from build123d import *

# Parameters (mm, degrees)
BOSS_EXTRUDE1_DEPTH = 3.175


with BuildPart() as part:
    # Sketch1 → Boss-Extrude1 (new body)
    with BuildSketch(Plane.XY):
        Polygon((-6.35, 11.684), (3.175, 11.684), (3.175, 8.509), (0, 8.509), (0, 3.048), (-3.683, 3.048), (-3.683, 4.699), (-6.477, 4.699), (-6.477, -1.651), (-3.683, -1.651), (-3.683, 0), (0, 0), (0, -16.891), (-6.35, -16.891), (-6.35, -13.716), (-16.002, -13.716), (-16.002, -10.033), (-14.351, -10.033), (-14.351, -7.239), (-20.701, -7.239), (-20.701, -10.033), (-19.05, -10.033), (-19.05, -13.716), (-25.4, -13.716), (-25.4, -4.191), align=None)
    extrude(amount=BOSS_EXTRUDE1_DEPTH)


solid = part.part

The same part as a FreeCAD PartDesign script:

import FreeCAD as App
import Part
import Sketcher
Q = App.Units.Quantity

doc = App.newDocument("Part")
body = doc.addObject("PartDesign::Body", "Body")

sketch1 = doc.addObject("Sketcher::SketchObject", "Sketch")
body.addObject(sketch1)
sketch1.AttachmentSupport = (doc.XY_Plane, [""])
sketch1.MapMode = "FlatFace"
sketch1.addGeometry([
    Part.LineSegment(App.Vector(3.2, 11.7, 0), App.Vector(-6.3, 11.7, 0)),
    Part.LineSegment(App.Vector(-6.3, 11.7, 0), App.Vector(-25.4, -4.2, 0)),
    Part.LineSegment(App.Vector(-25.4, -4.2, 0), App.Vector(-25.4, -13.7, 0)),
    Part.LineSegment(App.Vector(-25.4, -13.7, 0), App.Vector(-19.1, -13.7, 0)),
    Part.LineSegment(App.Vector(-19.1, -13.7, 0), App.Vector(-19.1, -10, 0)),
    Part.LineSegment(App.Vector(-19.1, -10, 0), App.Vector(-20.7, -10, 0)),
    Part.LineSegment(App.Vector(-20.7, -10, 0), App.Vector(-20.7, -7.2, 0)),
    Part.LineSegment(App.Vector(-20.7, -7.2, 0), App.Vector(-14.4, -7.2, 0)),
    Part.LineSegment(App.Vector(-14.4, -7.2, 0), App.Vector(-14.4, -10, 0)),
    Part.LineSegment(App.Vector(-14.4, -10, 0), App.Vector(-16, -10, 0)),
    Part.LineSegment(App.Vector(-16, -10, 0), App.Vector(-16, -13.7, 0)),
    Part.LineSegment(App.Vector(-16, -13.7, 0), App.Vector(-6.3, -13.7, 0)),
    Part.LineSegment(App.Vector(-6.3, -13.7, 0), App.Vector(-6.3, -16.9, 0)),
    Part.LineSegment(App.Vector(-6.3, -16.9, 0), App.Vector(0, -16.9, 0)),
    Part.LineSegment(App.Vector(0, -16.9, 0), App.Vector(0, 0, 0)),
    Part.LineSegment(App.Vector(0, 0, 0), App.Vector(-3.7, 0, 0)),
    Part.LineSegment(App.Vector(-3.7, 0, 0), App.Vector(-3.7, -1.7, 0)),
    Part.LineSegment(App.Vector(-3.7, -1.7, 0), App.Vector(-6.5, -1.7, 0)),
    Part.LineSegment(App.Vector(-6.5, -1.7, 0), App.Vector(-6.5, 4.7, 0)),
    Part.LineSegment(App.Vector(-6.5, 4.7, 0), App.Vector(-3.7, 4.7, 0)),
    Part.LineSegment(App.Vector(-3.7, 4.7, 0), App.Vector(-3.7, 3, 0)),
    Part.LineSegment(App.Vector(-3.7, 3, 0), App.Vector(0, 3, 0)),
    Part.LineSegment(App.Vector(0, 3, 0), App.Vector(0, 8.5, 0)),
    Part.LineSegment(App.Vector(0, 8.5, 0), App.Vector(3.2, 8.5, 0)),
    Part.LineSegment(App.Vector(3.2, 8.5, 0), App.Vector(3.2, 11.7, 0)),
], False)
sketch1.addConstraint([
    Sketcher.Constraint("Coincident", 0, 2, 1, 1),
    Sketcher.Constraint("Coincident", 1, 2, 2, 1),
    Sketcher.Constraint("Coincident", 2, 2, 3, 1),
    Sketcher.Constraint("Coincident", 3, 2, 4, 1),
    Sketcher.Constraint("Coincident", 4, 2, 5, 1),
    Sketcher.Constraint("Coincident", 5, 2, 6, 1),
    Sketcher.Constraint("Coincident", 6, 2, 7, 1),
    Sketcher.Constraint("Coincident", 7, 2, 8, 1),
    Sketcher.Constraint("Coincident", 8, 2, 9, 1),
    Sketcher.Constraint("Coincident", 9, 2, 10, 1),
    Sketcher.Constraint("Coincident", 10, 2, 11, 1),
    Sketcher.Constraint("Coincident", 11, 2, 12, 1),
    Sketcher.Constraint("Coincident", 12, 2, 13, 1),
    Sketcher.Constraint("Coincident", 13, 2, 14, 1),
    Sketcher.Constraint("Coincident", 14, 2, 15, 1),
    Sketcher.Constraint("Coincident", 15, 2, 16, 1),
    Sketcher.Constraint("Coincident", 16, 2, 17, 1),
    Sketcher.Constraint("Coincident", 17, 2, 18, 1),
    Sketcher.Constraint("Coincident", 18, 2, 19, 1),
    Sketcher.Constraint("Coincident", 19, 2, 20, 1),
    Sketcher.Constraint("Coincident", 20, 2, 21, 1),
    Sketcher.Constraint("Coincident", 21, 2, 22, 1),
    Sketcher.Constraint("Coincident", 22, 2, 23, 1),
    Sketcher.Constraint("Coincident", 23, 2, 24, 1),
    Sketcher.Constraint("Coincident", 24, 2, 0, 1),
    Sketcher.Constraint("Horizontal", 0),
    Sketcher.Constraint("Vertical", 2),
    Sketcher.Constraint("Horizontal", 3),
    Sketcher.Constraint("Vertical", 4),
    Sketcher.Constraint("Horizontal", 5),
    Sketcher.Constraint("Vertical", 6),
    Sketcher.Constraint("Horizontal", 7),
    Sketcher.Constraint("Vertical", 8),
    Sketcher.Constraint("Horizontal", 9),
    Sketcher.Constraint("Vertical", 10),
    Sketcher.Constraint("Horizontal", 11),
    Sketcher.Constraint("Vertical", 12),
    Sketcher.Constraint("Horizontal", 13),
    Sketcher.Constraint("Vertical", 14),
    Sketcher.Constraint("Horizontal", 15),
    Sketcher.Constraint("Vertical", 16),
    Sketcher.Constraint("Horizontal", 17),
    Sketcher.Constraint("Vertical", 18),
    Sketcher.Constraint("Horizontal", 19),
    Sketcher.Constraint("Vertical", 20),
    Sketcher.Constraint("Horizontal", 21),
    Sketcher.Constraint("Vertical", 22),
    Sketcher.Constraint("Horizontal", 23),
    Sketcher.Constraint("Vertical", 24),
    Sketcher.Constraint("Coincident", 14, 2, -1, 1),
    Sketcher.Constraint("PointOnObject", 21, 2, -2),
    Sketcher.Constraint("Horizontal", 5, 2, 8, 2),
    Sketcher.Constraint("Horizontal", 3, 2, 10, 2),
    Sketcher.Constraint("Vertical", 0, 2, 11, 2),
    Sketcher.Constraint("Vertical", 16, 2, 19, 2),
    Sketcher.Constraint("Equal", 3, 7),
    Sketcher.Constraint("Equal", 5, 9),
    Sketcher.Constraint("Equal", 7, 13),
    Sketcher.Constraint("Equal", 0, 2),
    Sketcher.Constraint("Equal", 21, 4),
    Sketcher.Constraint("Equal", 19, 6),
    Sketcher.Constraint("Equal", 23, 12),
    Sketcher.Constraint("Equal", 9, 16),
    Sketcher.Constraint("Equal", 13, 18),
    Sketcher.Constraint("Equal", 16, 20),
    Sketcher.Constraint("Equal", 12, 24),
    Sketcher.Constraint("DistanceX", 1, 2, -1, 1, Q("1 in")),
    Sketcher.Constraint("DistanceY", 2, 2, 0, 2, Q("1 in")),
    Sketcher.Constraint("DistanceX", 3, 1, 3, 2, Q("0.25 in")),
    Sketcher.Constraint("DistanceX", 11, 1, 11, 2, Q("0.38 in")),
    Sketcher.Constraint("DistanceX", 17, 2, 17, 1, Q("0.11 in")),
    Sketcher.Constraint("DistanceX", 0, 2, 0, 1, Q("0.375 in")),
    Sketcher.Constraint("DistanceX", 15, 2, 15, 1, Q("0.145 in")),
    Sketcher.Constraint("DistanceY", 14, 1, 14, 2, Q("0.665 in")),
])
pad1 = doc.addObject("PartDesign::Pad", "Pad")
body.addObject(pad1)
pad1.Profile = sketch1
pad1.Length = Q("0.125 in")

doc.recompute()
